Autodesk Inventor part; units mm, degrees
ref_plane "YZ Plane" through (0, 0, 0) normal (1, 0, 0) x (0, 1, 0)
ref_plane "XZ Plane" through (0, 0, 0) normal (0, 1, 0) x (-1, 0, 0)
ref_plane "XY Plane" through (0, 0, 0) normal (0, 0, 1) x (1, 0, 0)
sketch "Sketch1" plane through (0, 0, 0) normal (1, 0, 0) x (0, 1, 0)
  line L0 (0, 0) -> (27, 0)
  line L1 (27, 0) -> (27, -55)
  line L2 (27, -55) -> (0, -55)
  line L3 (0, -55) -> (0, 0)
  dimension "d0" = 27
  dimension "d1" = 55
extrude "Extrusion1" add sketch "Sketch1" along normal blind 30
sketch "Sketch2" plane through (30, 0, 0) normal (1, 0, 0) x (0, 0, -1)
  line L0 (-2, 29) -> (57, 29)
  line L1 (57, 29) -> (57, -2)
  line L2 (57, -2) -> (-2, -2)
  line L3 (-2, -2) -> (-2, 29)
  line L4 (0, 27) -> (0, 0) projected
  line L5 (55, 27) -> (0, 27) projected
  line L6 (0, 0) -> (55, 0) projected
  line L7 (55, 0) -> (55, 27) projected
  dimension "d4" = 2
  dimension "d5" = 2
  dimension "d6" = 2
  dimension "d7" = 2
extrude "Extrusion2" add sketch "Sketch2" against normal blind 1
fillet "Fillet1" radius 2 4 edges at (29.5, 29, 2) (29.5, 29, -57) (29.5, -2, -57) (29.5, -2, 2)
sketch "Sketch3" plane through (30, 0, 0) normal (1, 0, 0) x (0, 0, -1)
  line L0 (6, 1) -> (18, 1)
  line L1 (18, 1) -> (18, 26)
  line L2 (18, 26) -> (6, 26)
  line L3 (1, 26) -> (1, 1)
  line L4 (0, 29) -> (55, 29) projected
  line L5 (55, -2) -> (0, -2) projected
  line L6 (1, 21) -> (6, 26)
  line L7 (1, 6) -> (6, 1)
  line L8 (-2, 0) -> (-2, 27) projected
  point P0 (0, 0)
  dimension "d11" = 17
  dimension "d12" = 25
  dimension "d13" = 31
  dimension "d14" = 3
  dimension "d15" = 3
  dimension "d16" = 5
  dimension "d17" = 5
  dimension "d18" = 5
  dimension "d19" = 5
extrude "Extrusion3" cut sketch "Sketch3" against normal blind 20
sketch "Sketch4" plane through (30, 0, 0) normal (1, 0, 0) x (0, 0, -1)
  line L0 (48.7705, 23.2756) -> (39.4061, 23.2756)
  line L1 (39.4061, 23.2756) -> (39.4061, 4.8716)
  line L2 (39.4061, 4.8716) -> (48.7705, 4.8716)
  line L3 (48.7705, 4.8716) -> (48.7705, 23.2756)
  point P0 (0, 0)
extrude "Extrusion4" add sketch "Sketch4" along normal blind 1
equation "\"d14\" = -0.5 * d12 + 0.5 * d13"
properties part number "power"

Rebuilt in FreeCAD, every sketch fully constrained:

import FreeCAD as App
import Part
import Sketcher

V = App.Vector
Q = App.Units.Quantity


def edges_at(feature, points):
    """Names of the edges that pass closest to the given points."""
    edges = feature.Shape.Edges
    near = lambda p: min(range(len(edges)), key=lambda i: edges[i].distToShape(Part.Vertex(*p))[0])
    return sorted({f"Edge{near(p) + 1}" for p in points})


def add_polygon(sketch, points):
    """Adds a closed chain of lines whose ends are joined by coincident constraints."""
    first, n = sketch.GeometryCount, len(points)
    for a, b in zip(points, points[1:] + points[:1]):
        sketch.addGeometry(Part.LineSegment(App.Vector(*a, 0), App.Vector(*b, 0)), False)
    for i in range(n):
        sketch.addConstraint(Sketcher.Constraint("Coincident", first + i, 2, first + (i + 1) % n, 1))

doc = App.newDocument("Part")
body = doc.addObject("PartDesign::Body", "Body")

# Sketch on YZ plane
sketch1 = doc.addObject("Sketcher::SketchObject", "Sketch")
body.addObject(sketch1)
sketch1.AttachmentSupport = (doc.YZ_Plane, [""])
sketch1.MapMode = "FlatFace"
add_polygon(sketch1, [(27, 0), (0, 0), (0, -55), (27, -55)])  # lines 0-3
sketch1.addConstraint(Sketcher.Constraint("Horizontal", 0))
sketch1.addConstraint(Sketcher.Constraint("Vertical", 1))
sketch1.addConstraint(Sketcher.Constraint("Horizontal", 2))
sketch1.addConstraint(Sketcher.Constraint("Vertical", 3))
sketch1.addConstraint(Sketcher.Constraint("Coincident", 0, 2, -1, 1))
sketch1.addConstraint(Sketcher.Constraint("DistanceX", 0, 2, 0, 1, Q("27 mm")))
sketch1.addConstraint(Sketcher.Constraint("DistanceY", 1, 2, 1, 1, Q("55 mm")))
pad1 = doc.addObject("PartDesign::Pad", "Pad")
body.addObject(pad1)
pad1.Profile = sketch1
pad1.Length = 30

# Sketch on YZ plane
sketch2 = doc.addObject("Sketcher::SketchObject", "Sketch001")
body.addObject(sketch2)
sketch2.AttachmentSupport = (doc.YZ_Plane, [""])
sketch2.MapMode = "FlatFace"
sketch2.AttachmentOffset = App.Placement(V(0, 0, 30), App.Rotation())
add_polygon(sketch2, [(29, -57), (29, 2), (-2, 2), (-2, -57)])  # lines 0-3
add_polygon(sketch2, [(0, 0), (27, 0), (27, -55), (0, -55)])  # lines 4-7
sketch2.addConstraint(Sketcher.Constraint("Vertical", 0))
sketch2.addConstraint(Sketcher.Constraint("Horizontal", 1))
sketch2.addConstraint(Sketcher.Constraint("Vertical", 2))
sketch2.addConstraint(Sketcher.Constraint("Horizontal", 3))
sketch2.addConstraint(Sketcher.Constraint("Horizontal", 4))
sketch2.addConstraint(Sketcher.Constraint("Vertical", 5))
sketch2.addConstraint(Sketcher.Constraint("Horizontal", 6))
sketch2.addConstraint(Sketcher.Constraint("Vertical", 7))
sketch2.addConstraint(Sketcher.Constraint("Coincident", 7, 2, -1, 1))
sketch2.addConstraint(Sketcher.Constraint("DistanceY", -1, 1, 0, 2, Q("2 mm")))
sketch2.addConstraint(Sketcher.Constraint("DistanceX", 1, 2, -1, 1, Q("2 mm")))
sketch2.addConstraint(Sketcher.Constraint("DistanceX", 4, 2, 0, 2, Q("2 mm")))
sketch2.addConstraint(Sketcher.Constraint("DistanceY", 3, 2, 5, 2, Q("2 mm")))
sketch2.addConstraint(Sketcher.Constraint("DistanceX", 1, 2, 1, 1, Q("31 mm")))
sketch2.addConstraint(Sketcher.Constraint("DistanceY", 0, 1, 0, 2, Q("59 mm")))
pad2 = doc.addObject("PartDesign::Pad", "Pad001")
body.addObject(pad2)
pad2.Profile = sketch2
pad2.Length = 1
pad2.Reversed = True
doc.recompute()

fillet = doc.addObject("PartDesign::Fillet", "Fillet")
body.addObject(fillet)
fillet.Base = (pad2, edges_at(pad2, [
    (29.5, 29, 2),
    (29.5, 29, -57),
    (29.5, -2, -57),
    (29.5, -2, 2),
]))
fillet.Radius = 2

# Sketch on YZ plane
sketch3 = doc.addObject("Sketcher::SketchObject", "Sketch002")
body.addObject(sketch3)
sketch3.AttachmentSupport = (doc.YZ_Plane, [""])
sketch3.MapMode = "FlatFace"
sketch3.AttachmentOffset = App.Placement(V(0, 0, 30), App.Rotation())
add_polygon(sketch3, [(6, -1), (1, -6), (1, -18), (26, -18), (26, -6), (21, -1)])  # lines 0-5
sketch3.addConstraint(Sketcher.Constraint("Vertical", 1))
sketch3.addConstraint(Sketcher.Constraint("Horizontal", 2))
sketch3.addConstraint(Sketcher.Constraint("Vertical", 3))
sketch3.addConstraint(Sketcher.Constraint("Horizontal", 5))
sketch3.addConstraint(Sketcher.Constraint("Perpendicular", 0, 4))
sketch3.addConstraint(Sketcher.Constraint("Horizontal", 0, 2, 3, 2))
sketch3.addConstraint(Sketcher.Constraint("Equal", 0, 4))
sketch3.addConstraint(Sketcher.Constraint("DistanceX", 2, 1, 2, 2, Q("25 mm")))
sketch3.addConstraint(Sketcher.Constraint("DistanceX", 4, 2, 3, 2, Q("5 mm")))
sketch3.addConstraint(Sketcher.Constraint("DistanceY", 2, 2, 4, 2, Q("17 mm")))
sketch3.addConstraint(Sketcher.Constraint("DistanceX", -1, 1, 0, 2, Q("1 mm")))
sketch3.addConstraint(Sketcher.Constraint("DistanceY", 0, 2, -1, 1, Q("6 mm")))
pocket1 = doc.addObject("PartDesign::Pocket", "Pocket")
body.addObject(pocket1)
pocket1.Profile = sketch3
pocket1.Length = 20

# Sketch on YZ plane
sketch4 = doc.addObject("Sketcher::SketchObject", "Sketch003")
body.addObject(sketch4)
sketch4.AttachmentSupport = (doc.YZ_Plane, [""])
sketch4.MapMode = "FlatFace"
sketch4.AttachmentOffset = App.Placement(V(0, 0, 30), App.Rotation())
add_polygon(sketch4, [(5, -49), (23, -49), (23, -39), (5, -39)])  # lines 0-3
sketch4.addConstraint(Sketcher.Constraint("Horizontal", 0))
sketch4.addConstraint(Sketcher.Constraint("Vertical", 1))
sketch4.addConstraint(Sketcher.Constraint("Horizontal", 2))
sketch4.addConstraint(Sketcher.Constraint("Vertical", 3))
sketch4.addConstraint(Sketcher.Constraint("DistanceX", 0, 1, 0, 2, Q("18.404 mm")))
sketch4.addConstraint(Sketcher.Constraint("DistanceY", 1, 1, 1, 2, Q("9.3644 mm")))
sketch4.addConstraint(Sketcher.Constraint("DistanceY", 1, 2, -1, 1, Q("39.406 mm")))
sketch4.addConstraint(Sketcher.Constraint("DistanceX", -1, 1, 0, 2, Q("23.2756 mm")))
pad3 = doc.addObject("PartDesign::Pad", "Pad002")
body.addObject(pad3)
pad3.Profile = sketch4
pad3.Length = 1

doc.recompute()
